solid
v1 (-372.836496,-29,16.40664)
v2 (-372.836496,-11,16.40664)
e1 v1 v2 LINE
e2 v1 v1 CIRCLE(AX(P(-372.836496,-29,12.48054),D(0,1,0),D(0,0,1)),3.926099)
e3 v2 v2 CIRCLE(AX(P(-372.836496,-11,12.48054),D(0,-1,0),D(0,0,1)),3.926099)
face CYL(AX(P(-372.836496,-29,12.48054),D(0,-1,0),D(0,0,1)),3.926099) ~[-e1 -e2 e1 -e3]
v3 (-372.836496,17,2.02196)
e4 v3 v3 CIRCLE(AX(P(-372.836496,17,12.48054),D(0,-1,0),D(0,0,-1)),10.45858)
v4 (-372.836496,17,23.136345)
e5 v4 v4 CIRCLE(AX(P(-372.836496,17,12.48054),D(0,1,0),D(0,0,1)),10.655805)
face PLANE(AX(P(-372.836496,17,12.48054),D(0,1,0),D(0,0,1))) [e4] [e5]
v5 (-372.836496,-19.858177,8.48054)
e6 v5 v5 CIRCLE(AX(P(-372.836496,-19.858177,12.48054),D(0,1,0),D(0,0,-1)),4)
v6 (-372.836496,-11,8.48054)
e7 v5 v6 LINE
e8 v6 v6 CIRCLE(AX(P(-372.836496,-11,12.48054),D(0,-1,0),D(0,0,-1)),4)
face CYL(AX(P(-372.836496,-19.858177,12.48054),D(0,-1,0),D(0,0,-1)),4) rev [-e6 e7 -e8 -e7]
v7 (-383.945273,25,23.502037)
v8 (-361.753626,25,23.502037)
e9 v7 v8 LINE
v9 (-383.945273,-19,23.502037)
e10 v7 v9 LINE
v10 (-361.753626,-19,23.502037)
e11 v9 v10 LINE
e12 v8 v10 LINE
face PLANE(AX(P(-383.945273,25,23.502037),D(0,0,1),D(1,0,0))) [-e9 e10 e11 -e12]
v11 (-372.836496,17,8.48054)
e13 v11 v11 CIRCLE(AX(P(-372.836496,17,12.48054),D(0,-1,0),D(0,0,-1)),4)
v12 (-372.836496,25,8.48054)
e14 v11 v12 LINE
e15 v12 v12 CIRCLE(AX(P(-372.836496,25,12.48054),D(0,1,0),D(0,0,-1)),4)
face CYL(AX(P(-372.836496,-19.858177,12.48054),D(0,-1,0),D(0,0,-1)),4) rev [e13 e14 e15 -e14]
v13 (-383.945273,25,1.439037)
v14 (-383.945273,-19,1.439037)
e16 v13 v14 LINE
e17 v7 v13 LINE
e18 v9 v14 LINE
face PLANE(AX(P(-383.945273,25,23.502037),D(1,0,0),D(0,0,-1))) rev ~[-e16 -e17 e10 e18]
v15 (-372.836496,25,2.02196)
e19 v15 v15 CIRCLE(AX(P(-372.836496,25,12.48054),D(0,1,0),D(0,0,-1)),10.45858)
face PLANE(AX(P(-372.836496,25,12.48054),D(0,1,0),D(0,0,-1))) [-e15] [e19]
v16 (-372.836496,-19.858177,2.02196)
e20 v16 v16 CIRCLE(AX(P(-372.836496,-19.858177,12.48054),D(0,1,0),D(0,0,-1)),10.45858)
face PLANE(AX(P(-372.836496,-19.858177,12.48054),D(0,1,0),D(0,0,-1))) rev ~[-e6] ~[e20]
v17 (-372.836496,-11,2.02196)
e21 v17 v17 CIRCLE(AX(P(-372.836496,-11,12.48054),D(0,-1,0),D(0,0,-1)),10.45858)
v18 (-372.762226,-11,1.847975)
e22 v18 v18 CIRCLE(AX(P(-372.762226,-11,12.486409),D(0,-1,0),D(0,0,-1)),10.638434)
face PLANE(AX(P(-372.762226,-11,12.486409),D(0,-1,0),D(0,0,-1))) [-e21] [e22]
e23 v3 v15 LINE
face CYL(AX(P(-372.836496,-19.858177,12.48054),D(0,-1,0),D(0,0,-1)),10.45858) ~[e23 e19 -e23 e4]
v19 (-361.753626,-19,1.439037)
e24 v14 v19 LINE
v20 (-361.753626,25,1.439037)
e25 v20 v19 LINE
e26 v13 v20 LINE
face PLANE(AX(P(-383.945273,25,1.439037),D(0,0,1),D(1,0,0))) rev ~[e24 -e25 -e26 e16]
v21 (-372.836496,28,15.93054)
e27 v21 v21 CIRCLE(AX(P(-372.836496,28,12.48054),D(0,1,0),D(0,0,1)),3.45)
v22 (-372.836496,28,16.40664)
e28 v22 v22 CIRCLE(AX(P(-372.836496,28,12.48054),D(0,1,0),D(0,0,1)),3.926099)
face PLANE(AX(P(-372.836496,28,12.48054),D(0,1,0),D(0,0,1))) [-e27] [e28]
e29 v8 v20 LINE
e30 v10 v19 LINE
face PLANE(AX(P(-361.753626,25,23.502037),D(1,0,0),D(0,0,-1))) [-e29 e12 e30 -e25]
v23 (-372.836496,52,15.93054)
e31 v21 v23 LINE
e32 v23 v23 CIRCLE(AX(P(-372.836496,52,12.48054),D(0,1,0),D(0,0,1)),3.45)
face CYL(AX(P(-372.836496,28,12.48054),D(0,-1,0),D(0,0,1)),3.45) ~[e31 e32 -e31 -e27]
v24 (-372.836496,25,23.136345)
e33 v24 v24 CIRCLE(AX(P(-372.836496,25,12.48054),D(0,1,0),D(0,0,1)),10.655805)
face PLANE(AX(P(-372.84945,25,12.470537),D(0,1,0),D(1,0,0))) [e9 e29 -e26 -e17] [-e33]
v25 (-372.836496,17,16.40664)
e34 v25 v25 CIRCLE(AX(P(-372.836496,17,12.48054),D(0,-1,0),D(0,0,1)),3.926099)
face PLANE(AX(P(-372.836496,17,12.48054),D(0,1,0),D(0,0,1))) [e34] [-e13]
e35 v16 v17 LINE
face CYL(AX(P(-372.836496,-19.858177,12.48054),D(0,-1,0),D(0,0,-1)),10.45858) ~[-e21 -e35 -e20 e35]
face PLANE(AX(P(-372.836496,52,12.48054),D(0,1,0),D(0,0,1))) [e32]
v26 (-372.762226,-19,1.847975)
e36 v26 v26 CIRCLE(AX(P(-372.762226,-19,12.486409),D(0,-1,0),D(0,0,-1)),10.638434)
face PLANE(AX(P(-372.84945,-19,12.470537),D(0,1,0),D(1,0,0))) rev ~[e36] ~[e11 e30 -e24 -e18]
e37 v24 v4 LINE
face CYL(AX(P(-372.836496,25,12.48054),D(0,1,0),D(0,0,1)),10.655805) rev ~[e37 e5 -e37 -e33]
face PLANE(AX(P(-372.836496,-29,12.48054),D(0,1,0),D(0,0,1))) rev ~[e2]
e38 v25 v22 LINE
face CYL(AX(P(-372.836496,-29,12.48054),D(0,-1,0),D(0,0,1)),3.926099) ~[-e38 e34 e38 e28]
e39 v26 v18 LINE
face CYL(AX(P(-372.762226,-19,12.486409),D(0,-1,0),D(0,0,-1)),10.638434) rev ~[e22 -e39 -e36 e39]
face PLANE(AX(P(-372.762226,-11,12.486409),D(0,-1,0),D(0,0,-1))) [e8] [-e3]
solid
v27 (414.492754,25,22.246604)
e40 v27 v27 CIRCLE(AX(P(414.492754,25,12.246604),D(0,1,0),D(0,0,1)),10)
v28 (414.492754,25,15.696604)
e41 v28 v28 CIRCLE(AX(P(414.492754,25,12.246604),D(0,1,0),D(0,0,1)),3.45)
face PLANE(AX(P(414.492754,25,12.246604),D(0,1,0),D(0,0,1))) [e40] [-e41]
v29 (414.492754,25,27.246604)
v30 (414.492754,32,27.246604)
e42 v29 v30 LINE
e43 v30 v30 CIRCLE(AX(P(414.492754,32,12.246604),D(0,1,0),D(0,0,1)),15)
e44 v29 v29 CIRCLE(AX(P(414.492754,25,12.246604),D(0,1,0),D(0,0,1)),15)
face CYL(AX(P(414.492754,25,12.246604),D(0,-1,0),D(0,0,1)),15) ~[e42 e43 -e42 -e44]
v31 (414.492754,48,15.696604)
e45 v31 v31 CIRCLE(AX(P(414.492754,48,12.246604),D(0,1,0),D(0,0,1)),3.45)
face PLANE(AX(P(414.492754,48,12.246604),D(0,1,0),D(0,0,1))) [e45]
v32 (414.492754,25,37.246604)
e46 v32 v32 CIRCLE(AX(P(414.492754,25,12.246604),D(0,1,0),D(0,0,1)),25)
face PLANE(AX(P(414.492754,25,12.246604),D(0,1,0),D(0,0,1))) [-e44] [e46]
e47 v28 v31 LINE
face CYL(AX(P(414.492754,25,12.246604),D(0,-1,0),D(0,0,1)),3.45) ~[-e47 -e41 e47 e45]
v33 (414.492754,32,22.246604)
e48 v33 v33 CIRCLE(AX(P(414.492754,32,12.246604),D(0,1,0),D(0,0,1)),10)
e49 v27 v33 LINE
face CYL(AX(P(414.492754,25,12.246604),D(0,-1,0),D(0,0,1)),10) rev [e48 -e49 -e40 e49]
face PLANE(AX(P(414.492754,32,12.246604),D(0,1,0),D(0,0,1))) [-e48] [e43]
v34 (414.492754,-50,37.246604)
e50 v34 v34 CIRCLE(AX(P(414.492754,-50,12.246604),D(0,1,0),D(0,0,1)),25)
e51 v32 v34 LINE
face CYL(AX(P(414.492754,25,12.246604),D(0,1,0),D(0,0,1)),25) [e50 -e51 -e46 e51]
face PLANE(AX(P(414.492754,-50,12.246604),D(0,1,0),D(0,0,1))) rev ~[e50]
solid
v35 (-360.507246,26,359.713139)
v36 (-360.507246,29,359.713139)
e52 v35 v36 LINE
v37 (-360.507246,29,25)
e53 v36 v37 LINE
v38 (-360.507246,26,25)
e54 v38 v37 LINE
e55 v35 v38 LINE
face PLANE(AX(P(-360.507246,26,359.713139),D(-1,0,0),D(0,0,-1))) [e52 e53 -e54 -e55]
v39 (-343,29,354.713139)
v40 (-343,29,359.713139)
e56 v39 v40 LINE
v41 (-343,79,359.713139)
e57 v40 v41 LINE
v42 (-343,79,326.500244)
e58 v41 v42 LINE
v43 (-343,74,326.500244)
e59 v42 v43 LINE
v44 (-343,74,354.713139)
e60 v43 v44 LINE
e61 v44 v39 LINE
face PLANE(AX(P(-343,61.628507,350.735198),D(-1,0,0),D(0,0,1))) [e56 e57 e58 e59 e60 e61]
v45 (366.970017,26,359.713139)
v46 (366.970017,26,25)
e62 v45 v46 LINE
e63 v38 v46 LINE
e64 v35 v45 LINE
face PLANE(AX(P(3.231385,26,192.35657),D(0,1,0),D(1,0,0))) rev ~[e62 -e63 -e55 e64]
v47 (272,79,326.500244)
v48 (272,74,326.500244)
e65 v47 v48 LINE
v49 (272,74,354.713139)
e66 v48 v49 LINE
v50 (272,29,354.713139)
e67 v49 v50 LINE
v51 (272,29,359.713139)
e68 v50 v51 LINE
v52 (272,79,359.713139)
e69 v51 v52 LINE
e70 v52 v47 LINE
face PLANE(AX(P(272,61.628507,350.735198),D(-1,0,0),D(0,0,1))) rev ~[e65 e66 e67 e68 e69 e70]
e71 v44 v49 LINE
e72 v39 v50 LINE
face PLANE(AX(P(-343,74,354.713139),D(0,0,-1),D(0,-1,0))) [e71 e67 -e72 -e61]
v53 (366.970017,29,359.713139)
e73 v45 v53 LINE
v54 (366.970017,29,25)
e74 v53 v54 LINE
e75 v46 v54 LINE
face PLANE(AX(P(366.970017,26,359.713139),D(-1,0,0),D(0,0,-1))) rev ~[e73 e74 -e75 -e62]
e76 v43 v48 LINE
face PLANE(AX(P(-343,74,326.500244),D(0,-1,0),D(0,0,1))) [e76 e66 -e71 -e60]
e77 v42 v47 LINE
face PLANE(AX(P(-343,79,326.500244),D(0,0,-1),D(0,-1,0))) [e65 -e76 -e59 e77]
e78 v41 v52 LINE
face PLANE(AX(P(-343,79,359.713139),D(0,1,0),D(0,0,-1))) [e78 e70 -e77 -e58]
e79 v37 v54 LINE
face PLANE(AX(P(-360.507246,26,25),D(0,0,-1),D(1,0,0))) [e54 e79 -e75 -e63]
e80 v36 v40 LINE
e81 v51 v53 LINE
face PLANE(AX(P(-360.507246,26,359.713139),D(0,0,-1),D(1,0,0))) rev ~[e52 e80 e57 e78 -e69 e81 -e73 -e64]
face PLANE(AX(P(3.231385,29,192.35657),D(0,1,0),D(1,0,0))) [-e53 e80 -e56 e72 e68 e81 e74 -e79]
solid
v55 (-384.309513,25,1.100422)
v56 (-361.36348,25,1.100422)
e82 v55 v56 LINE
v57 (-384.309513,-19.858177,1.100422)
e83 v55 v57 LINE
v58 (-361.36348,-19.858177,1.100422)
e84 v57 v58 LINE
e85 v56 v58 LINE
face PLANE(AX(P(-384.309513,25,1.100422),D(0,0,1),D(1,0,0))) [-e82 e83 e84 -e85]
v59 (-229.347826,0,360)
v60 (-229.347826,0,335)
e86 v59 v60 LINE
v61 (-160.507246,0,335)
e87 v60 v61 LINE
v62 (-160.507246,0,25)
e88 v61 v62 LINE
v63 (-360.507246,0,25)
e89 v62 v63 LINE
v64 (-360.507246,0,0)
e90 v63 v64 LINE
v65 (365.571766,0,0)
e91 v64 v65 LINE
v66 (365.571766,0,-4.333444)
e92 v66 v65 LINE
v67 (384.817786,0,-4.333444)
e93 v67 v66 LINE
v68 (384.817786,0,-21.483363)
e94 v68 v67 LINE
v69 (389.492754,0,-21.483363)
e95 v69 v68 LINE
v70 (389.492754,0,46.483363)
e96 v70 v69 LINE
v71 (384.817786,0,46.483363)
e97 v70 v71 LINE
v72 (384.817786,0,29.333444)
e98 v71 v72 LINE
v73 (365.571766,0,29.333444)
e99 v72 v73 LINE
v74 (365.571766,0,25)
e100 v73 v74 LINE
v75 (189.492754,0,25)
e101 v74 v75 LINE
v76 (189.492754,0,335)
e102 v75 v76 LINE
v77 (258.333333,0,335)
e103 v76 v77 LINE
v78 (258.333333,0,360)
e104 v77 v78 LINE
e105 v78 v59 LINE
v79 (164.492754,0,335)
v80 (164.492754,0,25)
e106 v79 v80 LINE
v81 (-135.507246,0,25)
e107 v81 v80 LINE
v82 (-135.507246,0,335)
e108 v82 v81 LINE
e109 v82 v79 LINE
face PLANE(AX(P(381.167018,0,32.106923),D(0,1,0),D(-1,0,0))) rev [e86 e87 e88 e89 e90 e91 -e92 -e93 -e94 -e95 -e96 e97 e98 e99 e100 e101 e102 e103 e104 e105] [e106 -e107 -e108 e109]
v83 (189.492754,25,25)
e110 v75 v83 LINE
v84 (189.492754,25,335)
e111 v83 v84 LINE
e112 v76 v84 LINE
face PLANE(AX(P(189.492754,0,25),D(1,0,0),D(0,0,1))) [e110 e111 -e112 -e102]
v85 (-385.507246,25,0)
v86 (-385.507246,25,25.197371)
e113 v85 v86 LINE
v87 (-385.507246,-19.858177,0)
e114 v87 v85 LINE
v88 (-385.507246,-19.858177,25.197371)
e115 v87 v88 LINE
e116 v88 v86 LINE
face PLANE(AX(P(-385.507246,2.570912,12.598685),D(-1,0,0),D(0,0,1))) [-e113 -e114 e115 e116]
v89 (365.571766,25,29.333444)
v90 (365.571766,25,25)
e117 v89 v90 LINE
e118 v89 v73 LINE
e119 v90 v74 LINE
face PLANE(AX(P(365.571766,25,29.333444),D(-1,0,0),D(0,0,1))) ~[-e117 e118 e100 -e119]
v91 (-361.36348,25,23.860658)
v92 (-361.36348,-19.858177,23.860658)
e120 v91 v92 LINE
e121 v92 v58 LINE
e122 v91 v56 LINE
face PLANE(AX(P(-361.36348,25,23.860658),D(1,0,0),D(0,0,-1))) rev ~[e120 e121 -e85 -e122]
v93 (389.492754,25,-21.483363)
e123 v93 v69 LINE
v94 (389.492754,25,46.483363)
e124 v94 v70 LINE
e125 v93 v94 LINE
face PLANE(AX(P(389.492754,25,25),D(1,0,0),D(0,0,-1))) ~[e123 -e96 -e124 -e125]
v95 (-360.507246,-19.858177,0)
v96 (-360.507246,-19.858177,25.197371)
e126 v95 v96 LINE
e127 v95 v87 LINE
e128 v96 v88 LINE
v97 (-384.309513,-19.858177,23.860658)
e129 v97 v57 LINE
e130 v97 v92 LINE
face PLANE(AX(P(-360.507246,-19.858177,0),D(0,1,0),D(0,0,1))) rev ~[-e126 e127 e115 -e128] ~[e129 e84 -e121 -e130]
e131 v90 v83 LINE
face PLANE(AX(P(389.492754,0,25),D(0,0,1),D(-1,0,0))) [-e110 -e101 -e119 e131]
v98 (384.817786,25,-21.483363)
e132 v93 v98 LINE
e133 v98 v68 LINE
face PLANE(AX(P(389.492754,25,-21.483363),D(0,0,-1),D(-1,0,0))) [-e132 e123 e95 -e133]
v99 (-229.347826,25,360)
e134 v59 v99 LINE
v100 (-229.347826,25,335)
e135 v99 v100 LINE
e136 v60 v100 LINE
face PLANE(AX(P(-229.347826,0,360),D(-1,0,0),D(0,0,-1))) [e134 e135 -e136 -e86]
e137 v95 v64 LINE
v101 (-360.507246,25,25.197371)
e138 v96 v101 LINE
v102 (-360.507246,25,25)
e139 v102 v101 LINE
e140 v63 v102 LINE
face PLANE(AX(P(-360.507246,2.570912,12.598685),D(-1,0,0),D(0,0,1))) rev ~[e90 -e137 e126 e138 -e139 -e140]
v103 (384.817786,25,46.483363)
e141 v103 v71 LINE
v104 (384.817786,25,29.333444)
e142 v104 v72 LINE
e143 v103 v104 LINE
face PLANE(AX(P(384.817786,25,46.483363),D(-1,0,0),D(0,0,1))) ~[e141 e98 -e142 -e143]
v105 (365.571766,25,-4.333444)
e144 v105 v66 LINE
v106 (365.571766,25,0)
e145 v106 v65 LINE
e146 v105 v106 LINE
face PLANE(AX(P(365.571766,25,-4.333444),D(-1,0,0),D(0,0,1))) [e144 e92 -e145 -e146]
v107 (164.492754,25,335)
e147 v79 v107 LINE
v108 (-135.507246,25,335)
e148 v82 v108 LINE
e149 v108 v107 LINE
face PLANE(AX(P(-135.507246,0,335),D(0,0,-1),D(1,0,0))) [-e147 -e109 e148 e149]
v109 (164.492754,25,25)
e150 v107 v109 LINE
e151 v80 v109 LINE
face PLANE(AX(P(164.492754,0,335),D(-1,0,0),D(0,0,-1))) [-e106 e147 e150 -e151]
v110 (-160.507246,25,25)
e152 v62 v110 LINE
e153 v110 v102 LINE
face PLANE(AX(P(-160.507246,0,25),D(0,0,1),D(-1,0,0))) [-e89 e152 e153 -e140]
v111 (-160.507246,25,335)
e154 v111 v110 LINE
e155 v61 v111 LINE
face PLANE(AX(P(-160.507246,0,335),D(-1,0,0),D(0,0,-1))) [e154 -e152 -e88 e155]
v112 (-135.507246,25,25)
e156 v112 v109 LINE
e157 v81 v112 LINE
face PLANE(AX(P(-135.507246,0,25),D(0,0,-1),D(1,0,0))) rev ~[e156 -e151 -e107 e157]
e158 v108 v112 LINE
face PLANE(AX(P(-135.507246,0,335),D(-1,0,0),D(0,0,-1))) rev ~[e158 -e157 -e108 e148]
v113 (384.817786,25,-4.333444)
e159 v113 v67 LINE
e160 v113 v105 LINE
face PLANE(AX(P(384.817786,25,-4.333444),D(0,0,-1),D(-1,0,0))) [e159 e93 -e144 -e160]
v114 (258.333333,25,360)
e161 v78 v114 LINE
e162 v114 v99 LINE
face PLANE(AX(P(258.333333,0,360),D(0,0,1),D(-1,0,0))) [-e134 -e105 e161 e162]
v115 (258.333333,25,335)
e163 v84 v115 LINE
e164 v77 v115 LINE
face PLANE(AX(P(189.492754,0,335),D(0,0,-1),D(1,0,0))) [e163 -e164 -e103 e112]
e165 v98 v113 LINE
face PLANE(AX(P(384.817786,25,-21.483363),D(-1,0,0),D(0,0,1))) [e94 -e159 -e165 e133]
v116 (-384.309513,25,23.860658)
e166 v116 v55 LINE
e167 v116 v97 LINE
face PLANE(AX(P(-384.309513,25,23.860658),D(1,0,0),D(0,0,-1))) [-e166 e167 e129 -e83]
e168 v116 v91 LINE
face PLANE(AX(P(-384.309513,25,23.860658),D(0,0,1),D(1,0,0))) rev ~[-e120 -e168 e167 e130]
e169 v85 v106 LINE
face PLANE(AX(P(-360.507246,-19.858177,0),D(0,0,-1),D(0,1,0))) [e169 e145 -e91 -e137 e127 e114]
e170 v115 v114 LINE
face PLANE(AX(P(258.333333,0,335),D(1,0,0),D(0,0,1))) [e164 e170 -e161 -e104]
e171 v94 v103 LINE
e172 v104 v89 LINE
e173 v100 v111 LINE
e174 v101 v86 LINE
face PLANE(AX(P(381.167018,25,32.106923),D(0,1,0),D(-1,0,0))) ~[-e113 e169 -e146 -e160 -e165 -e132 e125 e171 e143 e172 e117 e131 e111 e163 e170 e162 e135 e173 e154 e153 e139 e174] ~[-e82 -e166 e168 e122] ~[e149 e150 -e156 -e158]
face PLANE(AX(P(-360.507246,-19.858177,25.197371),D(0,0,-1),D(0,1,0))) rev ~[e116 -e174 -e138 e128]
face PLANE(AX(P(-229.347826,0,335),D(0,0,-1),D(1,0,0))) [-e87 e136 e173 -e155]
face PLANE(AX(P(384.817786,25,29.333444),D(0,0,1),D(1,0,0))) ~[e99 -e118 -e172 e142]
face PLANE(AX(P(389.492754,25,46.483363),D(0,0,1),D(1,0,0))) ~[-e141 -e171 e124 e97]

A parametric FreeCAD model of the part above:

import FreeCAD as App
import Part
import Sketcher

V = App.Vector
Q = App.Units.Quantity

doc = App.newDocument("Part")
body = doc.addObject("PartDesign::Body", "Body")

sketch1 = body.newObject("Sketcher::SketchObject", "Sketch")
sketch1.AttachmentSupport = (doc.getObject("XZ_Plane"), [""])
sketch1.MapMode = "FlatFace"
sketch1.addGeometry(Part.LineSegment(V(389, 0, 0), V(-361, 0, 0)), False)
sketch1.addGeometry(Part.LineSegment(V(-361, 0, 0), V(-361, 25, 0)), False)
sketch1.addGeometry(Part.LineSegment(V(-361, 25, 0), V(-161, 25, 0)), False)
sketch1.addGeometry(Part.LineSegment(V(-161, 25, 0), V(-161, 335, 0)), False)
sketch1.addGeometry(Part.LineSegment(V(-161, 335, 0), V(-229, 335, 0)), False)
sketch1.addGeometry(Part.LineSegment(V(-229, 335, 0), V(-229, 360, 0)), False)
sketch1.addGeometry(Part.LineSegment(V(-229, 360, 0), V(258, 360, 0)), False)
sketch1.addGeometry(Part.LineSegment(V(258, 360, 0), V(258, 335, 0)), False)
sketch1.addGeometry(Part.LineSegment(V(258, 335, 0), V(189, 335, 0)), False)
sketch1.addGeometry(Part.LineSegment(V(189, 335, 0), V(189, 25, 0)), False)
sketch1.addGeometry(Part.LineSegment(V(189, 25, 0), V(389, 25, 0)), False)
sketch1.addGeometry(Part.LineSegment(V(389, 25, 0), V(389, 0, 0)), False)
sketch1.addGeometry(Part.LineSegment(V(-136, 335, 0), V(-136, 25, 0)), False)
sketch1.addGeometry(Part.LineSegment(V(-136, 25, 0), V(164, 25, 0)), False)
sketch1.addGeometry(Part.LineSegment(V(164, 25, 0), V(164, 335, 0)), False)
sketch1.addGeometry(Part.LineSegment(V(164, 335, 0), V(-136, 335, 0)), False)
sketch1.addConstraint(Sketcher.Constraint("Coincident", 0, 2, 1, 1))
sketch1.addConstraint(Sketcher.Constraint("Coincident", 1, 2, 2, 1))
sketch1.addConstraint(Sketcher.Constraint("Coincident", 2, 2, 3, 1))
sketch1.addConstraint(Sketcher.Constraint("Coincident", 3, 2, 4, 1))
sketch1.addConstraint(Sketcher.Constraint("Coincident", 4, 2, 5, 1))
sketch1.addConstraint(Sketcher.Constraint("Coincident", 5, 2, 6, 1))
sketch1.addConstraint(Sketcher.Constraint("Coincident", 6, 2, 7, 1))
sketch1.addConstraint(Sketcher.Constraint("Coincident", 7, 2, 8, 1))
sketch1.addConstraint(Sketcher.Constraint("Coincident", 8, 2, 9, 1))
sketch1.addConstraint(Sketcher.Constraint("Coincident", 9, 2, 10, 1))
sketch1.addConstraint(Sketcher.Constraint("Coincident", 10, 2, 11, 1))
sketch1.addConstraint(Sketcher.Constraint("Coincident", 11, 2, 0, 1))
sketch1.addConstraint(Sketcher.Constraint("Coincident", 12, 2, 13, 1))
sketch1.addConstraint(Sketcher.Constraint("Coincident", 13, 2, 14, 1))
sketch1.addConstraint(Sketcher.Constraint("Coincident", 14, 2, 15, 1))
sketch1.addConstraint(Sketcher.Constraint("Coincident", 15, 2, 12, 1))
sketch1.addConstraint(Sketcher.Constraint("Horizontal", 0))
sketch1.addConstraint(Sketcher.Constraint("Vertical", 1))
sketch1.addConstraint(Sketcher.Constraint("Horizontal", 2))
sketch1.addConstraint(Sketcher.Constraint("Vertical", 3))
sketch1.addConstraint(Sketcher.Constraint("Horizontal", 4))
sketch1.addConstraint(Sketcher.Constraint("Vertical", 5))
sketch1.addConstraint(Sketcher.Constraint("Horizontal", 6))
sketch1.addConstraint(Sketcher.Constraint("Vertical", 7))
sketch1.addConstraint(Sketcher.Constraint("Horizontal", 8))
sketch1.addConstraint(Sketcher.Constraint("Vertical", 9))
sketch1.addConstraint(Sketcher.Constraint("Horizontal", 10))
sketch1.addConstraint(Sketcher.Constraint("Vertical", 11))
sketch1.addConstraint(Sketcher.Constraint("Vertical", 12))
sketch1.addConstraint(Sketcher.Constraint("Horizontal", 13))
sketch1.addConstraint(Sketcher.Constraint("Vertical", 14))
sketch1.addConstraint(Sketcher.Constraint("Horizontal", 15))
sketch1.addConstraint(Sketcher.Constraint("PointOnObject", 0, 2, -1))
sketch1.addConstraint(Sketcher.Constraint("Horizontal", 4, 2, 7, 2))
sketch1.addConstraint(Sketcher.Constraint("Horizontal", 2, 2, 9, 2))
sketch1.addConstraint(Sketcher.Constraint("Horizontal", 10, 2, 12, 2))
sketch1.addConstraint(Sketcher.Constraint("Horizontal", 8, 2, 14, 2))
sketch1.addConstraint(Sketcher.Constraint("Equal", 4, 8))
sketch1.addConstraint(Sketcher.Constraint("Equal", 2, 10))
sketch1.addConstraint(Sketcher.Constraint("Equal", 1, 5))
sketch1.addConstraint(Sketcher.Constraint("DistanceX", 0, 2, 0, 1, Q("750 mm")))
sketch1.addConstraint(Sketcher.Constraint("DistanceX", 2, 1, 2, 2, Q("200 mm")))
sketch1.addConstraint(Sketcher.Constraint("DistanceX", 13, 1, 13, 2, Q("300 mm")))
sketch1.addConstraint(Sketcher.Constraint("DistanceY", 1, 1, 1, 2, Q("25 mm")))
sketch1.addConstraint(Sketcher.Constraint("DistanceY", 3, 1, 3, 2, Q("310 mm")))
sketch1.addConstraint(Sketcher.Constraint("DistanceX", 2, 2, 12, 2, Q("25 mm")))
sketch1.addConstraint(Sketcher.Constraint("DistanceX", 4, 2, 4, 1, Q("68.84058 mm")))
sketch1.addConstraint(Sketcher.Constraint("DistanceX", 0, 2, -1, 1, Q("360.507246 mm")))
pad1 = body.newObject("PartDesign::Pad", "Pad")
pad1.Profile = sketch1
pad1.Length = 25
pad1.Reversed = True

sketch2 = body.newObject("Sketcher::SketchObject", "Sketch001")
sketch2.AttachmentSupport = (doc.getObject("YZ_Plane"), [""])
sketch2.MapMode = "FlatFace"
sketch2.AttachmentOffset = App.Placement(V(0, 0, -360.507246), App.Rotation())
sketch2.addGeometry(Part.LineSegment(V(25, 0, 0), V(-20, 0, 0)), False)
sketch2.addGeometry(Part.LineSegment(V(-20, 0, 0), V(-20, 25, 0)), False)
sketch2.addGeometry(Part.LineSegment(V(-20, 25, 0), V(25, 25, 0)), False)
sketch2.addGeometry(Part.LineSegment(V(25, 25, 0), V(25, 0, 0)), False)
sketch2.addConstraint(Sketcher.Constraint("Coincident", 0, 2, 1, 1))
sketch2.addConstraint(Sketcher.Constraint("Coincident", 1, 2, 2, 1))
sketch2.addConstraint(Sketcher.Constraint("Coincident", 2, 2, 3, 1))
sketch2.addConstraint(Sketcher.Constraint("Coincident", 3, 2, 0, 1))
sketch2.addConstraint(Sketcher.Constraint("Horizontal", 0))
sketch2.addConstraint(Sketcher.Constraint("Vertical", 1))
sketch2.addConstraint(Sketcher.Constraint("Horizontal", 2))
sketch2.addConstraint(Sketcher.Constraint("Vertical", 3))
sketch2.addConstraint(Sketcher.Constraint("PointOnObject", 0, 2, -1))
sketch2.addConstraint(Sketcher.Constraint("DistanceX", -1, 1, 2, 2, Q("25 mm")))
sketch2.addConstraint(Sketcher.Constraint("DistanceY", 1, 1, 1, 2, Q("25.197371 mm")))
sketch2.addConstraint(Sketcher.Constraint("DistanceX", 0, 2, 0, 1, Q("44.858177 mm")))
pad2 = body.newObject("PartDesign::Pad", "Pad001")
pad2.Profile = sketch2
pad2.Length = 25
pad2.Reversed = True

sketch3 = body.newObject("Sketcher::SketchObject", "Sketch002")
sketch3.AttachmentSupport = (doc.getObject("XZ_Plane"), [""])
sketch3.MapMode = "FlatFace"
sketch3.AttachmentOffset = App.Placement(V(0, 0, -25), App.Rotation())
sketch3.addGeometry(Part.LineSegment(V(-384, 1, 0), V(-384, 24, 0)), False)
sketch3.addGeometry(Part.LineSegment(V(-384, 24, 0), V(-361, 24, 0)), False)
sketch3.addGeometry(Part.LineSegment(V(-361, 24, 0), V(-361, 1, 0)), False)
sketch3.addGeometry(Part.LineSegment(V(-361, 1, 0), V(-384, 1, 0)), False)
sketch3.addConstraint(Sketcher.Constraint("Coincident", 0, 2, 1, 1))
sketch3.addConstraint(Sketcher.Constraint("Coincident", 1, 2, 2, 1))
sketch3.addConstraint(Sketcher.Constraint("Coincident", 2, 2, 3, 1))
sketch3.addConstraint(Sketcher.Constraint("Coincident", 3, 2, 0, 1))
sketch3.addConstraint(Sketcher.Constraint("Vertical", 0))
sketch3.addConstraint(Sketcher.Constraint("Horizontal", 1))
sketch3.addConstraint(Sketcher.Constraint("Vertical", 2))
sketch3.addConstraint(Sketcher.Constraint("Horizontal", 3))
sketch3.addConstraint(Sketcher.Constraint("DistanceX", 1, 1, 1, 2, Q("22.946033 mm")))
sketch3.addConstraint(Sketcher.Constraint("DistanceY", 0, 1, 0, 2, Q("22.760236 mm")))
sketch3.addConstraint(Sketcher.Constraint("DistanceY", -1, 1, 0, 2, Q("23.860658 mm")))
sketch3.addConstraint(Sketcher.Constraint("DistanceX", 1, 2, -1, 1, Q("361.36348 mm")))
pocket1 = body.newObject("PartDesign::Pocket", "Pocket")
pocket1.Profile = sketch3
pocket1.Type = "ThroughAll"
pocket1.Reversed = True

sketch4 = body.newObject("Sketcher::SketchObject", "Sketch003")
sketch4.AttachmentSupport = (doc.getObject("XZ_Plane"), [""])
sketch4.MapMode = "FlatFace"
sketch4.AttachmentOffset = App.Placement(V(0, 0, -25), App.Rotation())
sketch4.addGeometry(Part.LineSegment(V(389.5, 0, 0), V(389.5, -21.5, 0)), False)
sketch4.addGeometry(Part.LineSegment(V(389.5, -21.5, 0), V(384.8, -21.5, 0)), False)
sketch4.addGeometry(Part.LineSegment(V(384.8, -21.5, 0), V(384.8, -4.3, 0)), False)
sketch4.addGeometry(Part.LineSegment(V(384.8, -4.3, 0), V(365.6, -4.3, 0)), False)
sketch4.addGeometry(Part.LineSegment(V(365.6, -4.3, 0), V(365.6, 0, 0)), False)
sketch4.addGeometry(Part.LineSegment(V(365.6, 0, 0), V(389.5, 0, 0)), False)
sketch4.addConstraint(Sketcher.Constraint("Coincident", 0, 2, 1, 1))
sketch4.addConstraint(Sketcher.Constraint("Coincident", 1, 2, 2, 1))
sketch4.addConstraint(Sketcher.Constraint("Coincident", 2, 2, 3, 1))
sketch4.addConstraint(Sketcher.Constraint("Coincident", 3, 2, 4, 1))
sketch4.addConstraint(Sketcher.Constraint("Coincident", 4, 2, 5, 1))
sketch4.addConstraint(Sketcher.Constraint("Coincident", 5, 2, 0, 1))
sketch4.addConstraint(Sketcher.Constraint("Vertical", 0))
sketch4.addConstraint(Sketcher.Constraint("Horizontal", 1))
sketch4.addConstraint(Sketcher.Constraint("Vertical", 2))
sketch4.addConstraint(Sketcher.Constraint("Horizontal", 3))
sketch4.addConstraint(Sketcher.Constraint("Vertical", 4))
sketch4.addConstraint(Sketcher.Constraint("Horizontal", 5))
sketch4.addConstraint(Sketcher.Constraint("PointOnObject", 4, 2, -1))
sketch4.addConstraint(Sketcher.Constraint("DistanceX", 3, 2, 3, 1, Q("19.246019 mm")))
sketch4.addConstraint(Sketcher.Constraint("DistanceY", 2, 1, 2, 2, Q("17.149918 mm")))
sketch4.addConstraint(Sketcher.Constraint("DistanceX", 1, 2, 1, 1, Q("4.674968 mm")))
sketch4.addConstraint(Sketcher.Constraint("DistanceY", 0, 2, 0, 1, Q("21.483363 mm")))
sketch4.addConstraint(Sketcher.Constraint("DistanceX", -1, 1, 0, 2, Q("389.492754 mm")))
pad3 = body.newObject("PartDesign::Pad", "Pad002")
pad3.Profile = sketch4
pad3.Length = 25
doc.recompute()

datumplane = body.newObject("PartDesign::Plane", "DatumPlane")
datumplane.AttachmentSupport = (doc.getObject("XY_Plane"), [""])
datumplane.MapMode = "FlatFace"
datumplane.AttachmentOffset = App.Placement(V(0, 0, 12.5), App.Rotation())
mirrored = body.newObject("PartDesign::Mirrored", "Mirrored")
mirrored.Originals = [pad3]
mirrored.MirrorPlane = (datumplane, [""])
body.Tip = mirrored
body2 = doc.addObject("PartDesign::Body", "Body001")

sketch5 = body2.newObject("Sketcher::SketchObject", "Sketch004")
sketch5.AttachmentSupport = (doc.getObject("XZ_Plane001"), [""])
sketch5.MapMode = "FlatFace"
sketch5.AttachmentOffset = App.Placement(V(0, 0, -25), App.Rotation())
sketch5.addGeometry(Part.LineSegment(V(-384, 1, 0), V(-384, 24, 0)), False)
sketch5.addGeometry(Part.LineSegment(V(-384, 24, 0), V(-362, 24, 0)), False)
sketch5.addGeometry(Part.LineSegment(V(-362, 24, 0), V(-362, 1, 0)), False)
sketch5.addGeometry(Part.LineSegment(V(-362, 1, 0), V(-384, 1, 0)), False)
sketch5.addConstraint(Sketcher.Constraint("Coincident", 0, 2, 1, 1))
sketch5.addConstraint(Sketcher.Constraint("Coincident", 1, 2, 2, 1))
sketch5.addConstraint(Sketcher.Constraint("Coincident", 2, 2, 3, 1))
sketch5.addConstraint(Sketcher.Constraint("Coincident", 3, 2, 0, 1))
sketch5.addConstraint(Sketcher.Constraint("Vertical", 0))
sketch5.addConstraint(Sketcher.Constraint("Horizontal", 1))
sketch5.addConstraint(Sketcher.Constraint("Vertical", 2))
sketch5.addConstraint(Sketcher.Constraint("Horizontal", 3))
sketch5.addConstraint(Sketcher.Constraint("DistanceY", 0, 1, 0, 2, Q("22.063 mm")))
sketch5.addConstraint(Sketcher.Constraint("DistanceX", 1, 1, 1, 2, Q("22.191647 mm")))
sketch5.addConstraint(Sketcher.Constraint("DistanceX", 0, 2, -1, 1, Q("383.945273 mm")))
sketch5.addConstraint(Sketcher.Constraint("DistanceY", -1, 1, 0, 2, Q("23.502037 mm")))
pad4 = body2.newObject("PartDesign::Pad", "Pad003")
pad4.Profile = sketch5
pad4.Length = 44

sketch6 = body2.newObject("Sketcher::SketchObject", "Sketch005")
sketch6.AttachmentSupport = (doc.getObject("XZ_Plane001"), [""])
sketch6.MapMode = "FlatFace"
sketch6.AttachmentOffset = App.Placement(V(0, 0, -25), App.Rotation())
sketch6.addGeometry(Part.Circle(V(-373, 12, 0), V(0, 0, 1), 11), False)
sketch6.addConstraint(Sketcher.Constraint("Diameter", 0, Q("21.31161 mm")))
sketch6.addConstraint(Sketcher.Constraint("DistanceY", -1, 1, 0, 3, Q("12.48054 mm")))
sketch6.addConstraint(Sketcher.Constraint("DistanceX", 0, 3, -1, 1, Q("372.836496 mm")))
pocket2 = body2.newObject("PartDesign::Pocket", "Pocket001")
pocket2.Profile = sketch6
pocket2.Length = 8
pocket2.Reversed = True

sketch7 = body2.newObject("Sketcher::SketchObject", "Sketch006")
sketch7.AttachmentSupport = (doc.getObject("XZ_Plane001"), [""])
sketch7.MapMode = "FlatFace"
sketch7.AttachmentOffset = App.Placement(V(0, 0, 19), App.Rotation())
sketch7.addGeometry(Part.Circle(V(-373, 12, 0), V(0, 0, 1), 11), False)
sketch7.addConstraint(Sketcher.Constraint("Diameter", 0, Q("21.276867 mm")))
sketch7.addConstraint(Sketcher.Constraint("DistanceY", -1, 1, 0, 3, Q("12.486409 mm")))
sketch7.addConstraint(Sketcher.Constraint("DistanceX", 0, 3, -1, 1, Q("372.762226 mm")))
pocket3 = body2.newObject("PartDesign::Pocket", "Pocket002")
pocket3.Profile = sketch7
pocket3.Length = 8

sketch8 = body2.newObject("Sketcher::SketchObject", "Sketch007")
sketch8.AttachmentSupport = (doc.getObject("XZ_Plane001"), [""])
sketch8.MapMode = "FlatFace"
sketch8.AttachmentOffset = App.Placement(V(0, 0, -17), App.Rotation())
sketch8.addGeometry(Part.Circle(V(-372.8, 12.5, 0), V(0, 0, 1), 10.5), False)
sketch8.addGeometry(Part.Circle(V(-372.8, 12.5, 0), V(0, 0, 1), 4), False)
sketch8.addConstraint(Sketcher.Constraint("Coincident", 1, 3, 0, 3))
sketch8.addConstraint(Sketcher.Constraint("Diameter", 1, Q("8 mm")))
sketch8.addConstraint(Sketcher.Constraint("Diameter", 0, Q("20.917161 mm")))
sketch8.addConstraint(Sketcher.Constraint("DistanceY", -1, 1, 0, 3, Q("12.48054 mm")))
sketch8.addConstraint(Sketcher.Constraint("DistanceX", 0, 3, -1, 1, Q("372.836496 mm")))
pad5 = body2.newObject("PartDesign::Pad", "Pad004")
pad5.Profile = sketch8
pad5.Type = "TwoLengths"
pad5.Length = 8
pad5.Length2 = 36.858177
pad5.Reversed = True

sketch9 = body2.newObject("Sketcher::SketchObject", "Sketch008")
sketch9.AttachmentSupport = (doc.getObject("XZ_Plane001"), [""])
sketch9.MapMode = "FlatFace"
sketch9.AttachmentOffset = App.Placement(V(0, 0, -25), App.Rotation())
sketch9.addGeometry(Part.Circle(V(-372.8, 12.5, 0), V(0, 0, 1), 3.9), False)
sketch9.addConstraint(Sketcher.Constraint("Diameter", 0, Q("7.852199 mm")))
sketch9.addConstraint(Sketcher.Constraint("DistanceY", -1, 1, 0, 3, Q("12.48054 mm")))
sketch9.addConstraint(Sketcher.Constraint("DistanceX", 0, 3, -1, 1, Q("372.836496 mm")))
pad6 = body2.newObject("PartDesign::Pad", "Pad005")
pad6.Profile = sketch9
pad6.Type = "TwoLengths"
pad6.Length = 3
pad6.Length2 = 54
pad6.Reversed = True

sketch10 = body2.newObject("Sketcher::SketchObject", "Sketch009")
sketch10.AttachmentSupport = (doc.getObject("XZ_Plane001"), [""])
sketch10.MapMode = "FlatFace"
sketch10.AttachmentOffset = App.Placement(V(0, 0, -28), App.Rotation())
sketch10.addGeometry(Part.Circle(V(-372.8, 12.5, 0), V(0, 0, 1), 3.5), False)
sketch10.addConstraint(Sketcher.Constraint("Diameter", 0, Q("6.9 mm")))
sketch10.addConstraint(Sketcher.Constraint("DistanceY", -1, 1, 0, 3, Q("12.48054 mm")))
sketch10.addConstraint(Sketcher.Constraint("DistanceX", 0, 3, -1, 1, Q("372.836496 mm")))
pad7 = body2.newObject("PartDesign::Pad", "Pad006")
pad7.Profile = sketch10
pad7.Length = 24
pad7.Reversed = True
body3 = doc.addObject("PartDesign::Body", "Body002")

sketch11 = body3.newObject("Sketcher::SketchObject", "Sketch010")
sketch11.AttachmentSupport = (doc.getObject("XZ_Plane002"), [""])
sketch11.MapMode = "FlatFace"
sketch11.AttachmentOffset = App.Placement(V(0, 0, -26), App.Rotation())
sketch11.addGeometry(Part.LineSegment(V(-361, 25, 0), V(-361, 360, 0)), False)
sketch11.addGeometry(Part.LineSegment(V(-361, 360, 0), V(367, 360, 0)), False)
sketch11.addGeometry(Part.LineSegment(V(367, 360, 0), V(367, 25, 0)), False)
sketch11.addGeometry(Part.LineSegment(V(367, 25, 0), V(-361, 25, 0)), False)
sketch11.addConstraint(Sketcher.Constraint("Coincident", 0, 2, 1, 1))
sketch11.addConstraint(Sketcher.Constraint("Coincident", 1, 2, 2, 1))
sketch11.addConstraint(Sketcher.Constraint("Coincident", 2, 2, 3, 1))
sketch11.addConstraint(Sketcher.Constraint("Coincident", 3, 2, 0, 1))
sketch11.addConstraint(Sketcher.Constraint("Vertical", 0))
sketch11.addConstraint(Sketcher.Constraint("Horizontal", 1))
sketch11.addConstraint(Sketcher.Constraint("Vertical", 2))
sketch11.addConstraint(Sketcher.Constraint("Horizontal", 3))
sketch11.addConstraint(Sketcher.Constraint("DistanceY", -1, 1, 2, 2, Q("25 mm")))
sketch11.addConstraint(Sketcher.Constraint("DistanceY", 0, 1, 0, 2, Q("334.713139 mm")))
sketch11.addConstraint(Sketcher.Constraint("DistanceX", 1, 1, 1, 2, Q("727.477263 mm")))
sketch11.addConstraint(Sketcher.Constraint("DistanceX", 0, 2, -1, 1, Q("360.507246 mm")))
pad8 = body3.newObject("PartDesign::Pad", "Pad007")
pad8.Profile = sketch11
pad8.Length = 3
pad8.Reversed = True

sketch12 = body3.newObject("Sketcher::SketchObject", "Sketch011")
sketch12.AttachmentSupport = (doc.getObject("YZ_Plane002"), [""])
sketch12.MapMode = "FlatFace"
sketch12.addGeometry(Part.LineSegment(V(79, 360, 0), V(29, 360, 0)), False)
sketch12.addGeometry(Part.LineSegment(V(29, 360, 0), V(29, 355, 0)), False)
sketch12.addGeometry(Part.LineSegment(V(29, 355, 0), V(74, 355, 0)), False)
sketch12.addGeometry(Part.LineSegment(V(74, 355, 0), V(74, 327, 0)), False)
sketch12.addGeometry(Part.LineSegment(V(74, 327, 0), V(79, 327, 0)), False)
sketch12.addGeometry(Part.LineSegment(V(79, 327, 0), V(79, 360, 0)), False)
sketch12.addConstraint(Sketcher.Constraint("Coincident", 0, 2, 1, 1))
sketch12.addConstraint(Sketcher.Constraint("Coincident", 1, 2, 2, 1))
sketch12.addConstraint(Sketcher.Constraint("Coincident", 2, 2, 3, 1))
sketch12.addConstraint(Sketcher.Constraint("Coincident", 3, 2, 4, 1))
sketch12.addConstraint(Sketcher.Constraint("Coincident", 4, 2, 5, 1))
sketch12.addConstraint(Sketcher.Constraint("Coincident", 5, 2, 0, 1))
sketch12.addConstraint(Sketcher.Constraint("Horizontal", 0))
sketch12.addConstraint(Sketcher.Constraint("Vertical", 1))
sketch12.addConstraint(Sketcher.Constraint("Horizontal", 2))
sketch12.addConstraint(Sketcher.Constraint("Vertical", 3))
sketch12.addConstraint(Sketcher.Constraint("Horizontal", 4))
sketch12.addConstraint(Sketcher.Constraint("Vertical", 5))
sketch12.addConstraint(Sketcher.Constraint("Equal", 4, 1))
sketch12.addConstraint(Sketcher.Constraint("DistanceX", 0, 2, 0, 1, Q("50 mm")))
sketch12.addConstraint(Sketcher.Constraint("DistanceX", 2, 1, 2, 2, Q("45 mm")))
sketch12.addConstraint(Sketcher.Constraint("DistanceX", -1, 1, 0, 2, Q("29 mm")))
sketch12.addConstraint(Sketcher.Constraint("DistanceY", 3, 2, 3, 1, Q("28.212895 mm")))
sketch12.addConstraint(Sketcher.Constraint("DistanceY", -1, 1, 0, 2, Q("359.713139 mm")))
pad9 = body3.newObject("PartDesign::Pad", "Pad008")
pad9.Profile = sketch12
pad9.Type = "TwoLengths"
pad9.Length = 272
pad9.Length2 = 343
body4 = doc.addObject("PartDesign::Body", "Body003")

sketch13 = body4.newObject("Sketcher::SketchObject", "Sketch012")
sketch13.AttachmentSupport = (doc.getObject("XZ_Plane003"), [""])
sketch13.MapMode = "FlatFace"
sketch13.AttachmentOffset = App.Placement(V(0, 0, -25), App.Rotation())
sketch13.addGeometry(Part.Circle(V(414, 12, 0), V(0, 0, 1), 25), False)
sketch13.addConstraint(Sketcher.Constraint("Diameter", 0, Q("50 mm")))
sketch13.addConstraint(Sketcher.Constraint("DistanceX", -1, 1, 0, 3, Q("414.492754 mm")))
sketch13.addConstraint(Sketcher.Constraint("DistanceY", -1, 1, 0, 3, Q("12.246604 mm")))
pad10 = body4.newObject("PartDesign::Pad", "Pad009")
pad10.Profile = sketch13
pad10.Length = 75

sketch14 = body4.newObject("Sketcher::SketchObject", "Sketch013")
sketch14.AttachmentSupport = (doc.getObject("XZ_Plane003"), [""])
sketch14.MapMode = "FlatFace"
sketch14.AttachmentOffset = App.Placement(V(0, 0, -25), App.Rotation())
sketch14.addGeometry(Part.Circle(V(414, 12, 0), V(0, 0, 1), 15), False)
sketch14.addGeometry(Part.Circle(V(414, 12, 0), V(0, 0, 1), 10), False)
sketch14.addConstraint(Sketcher.Constraint("Coincident", 1, 3, 0, 3))
sketch14.addConstraint(Sketcher.Constraint("Diameter", 0, Q("30 mm")))
sketch14.addConstraint(Sketcher.Constraint("Diameter", 1, Q("20 mm")))
sketch14.addConstraint(Sketcher.Constraint("DistanceX", -1, 1, 0, 3, Q("414.492754 mm")))
sketch14.addConstraint(Sketcher.Constraint("DistanceY", -1, 1, 0, 3, Q("12.246604 mm")))
pad11 = body4.newObject("PartDesign::Pad", "Pad010")
pad11.Profile = sketch14
pad11.Length = 7
pad11.Reversed = True

sketch15 = body4.newObject("Sketcher::SketchObject", "Sketch014")
sketch15.AttachmentSupport = (doc.getObject("XZ_Plane003"), [""])
sketch15.MapMode = "FlatFace"
sketch15.AttachmentOffset = App.Placement(V(0, 0, -25), App.Rotation())
sketch15.addGeometry(Part.Circle(V(414.5, 12.2, 0), V(0, 0, 1), 3.5), False)
sketch15.addConstraint(Sketcher.Constraint("Diameter", 0, Q("6.9 mm")))
sketch15.addConstraint(Sketcher.Constraint("DistanceX", -1, 1, 0, 3, Q("414.492754 mm")))
sketch15.addConstraint(Sketcher.Constraint("DistanceY", -1, 1, 0, 3, Q("12.246604 mm")))
pad12 = body4.newObject("PartDesign::Pad", "Pad011")
pad12.Profile = sketch15
pad12.Length = 23
pad12.Reversed = True

doc.recompute()
